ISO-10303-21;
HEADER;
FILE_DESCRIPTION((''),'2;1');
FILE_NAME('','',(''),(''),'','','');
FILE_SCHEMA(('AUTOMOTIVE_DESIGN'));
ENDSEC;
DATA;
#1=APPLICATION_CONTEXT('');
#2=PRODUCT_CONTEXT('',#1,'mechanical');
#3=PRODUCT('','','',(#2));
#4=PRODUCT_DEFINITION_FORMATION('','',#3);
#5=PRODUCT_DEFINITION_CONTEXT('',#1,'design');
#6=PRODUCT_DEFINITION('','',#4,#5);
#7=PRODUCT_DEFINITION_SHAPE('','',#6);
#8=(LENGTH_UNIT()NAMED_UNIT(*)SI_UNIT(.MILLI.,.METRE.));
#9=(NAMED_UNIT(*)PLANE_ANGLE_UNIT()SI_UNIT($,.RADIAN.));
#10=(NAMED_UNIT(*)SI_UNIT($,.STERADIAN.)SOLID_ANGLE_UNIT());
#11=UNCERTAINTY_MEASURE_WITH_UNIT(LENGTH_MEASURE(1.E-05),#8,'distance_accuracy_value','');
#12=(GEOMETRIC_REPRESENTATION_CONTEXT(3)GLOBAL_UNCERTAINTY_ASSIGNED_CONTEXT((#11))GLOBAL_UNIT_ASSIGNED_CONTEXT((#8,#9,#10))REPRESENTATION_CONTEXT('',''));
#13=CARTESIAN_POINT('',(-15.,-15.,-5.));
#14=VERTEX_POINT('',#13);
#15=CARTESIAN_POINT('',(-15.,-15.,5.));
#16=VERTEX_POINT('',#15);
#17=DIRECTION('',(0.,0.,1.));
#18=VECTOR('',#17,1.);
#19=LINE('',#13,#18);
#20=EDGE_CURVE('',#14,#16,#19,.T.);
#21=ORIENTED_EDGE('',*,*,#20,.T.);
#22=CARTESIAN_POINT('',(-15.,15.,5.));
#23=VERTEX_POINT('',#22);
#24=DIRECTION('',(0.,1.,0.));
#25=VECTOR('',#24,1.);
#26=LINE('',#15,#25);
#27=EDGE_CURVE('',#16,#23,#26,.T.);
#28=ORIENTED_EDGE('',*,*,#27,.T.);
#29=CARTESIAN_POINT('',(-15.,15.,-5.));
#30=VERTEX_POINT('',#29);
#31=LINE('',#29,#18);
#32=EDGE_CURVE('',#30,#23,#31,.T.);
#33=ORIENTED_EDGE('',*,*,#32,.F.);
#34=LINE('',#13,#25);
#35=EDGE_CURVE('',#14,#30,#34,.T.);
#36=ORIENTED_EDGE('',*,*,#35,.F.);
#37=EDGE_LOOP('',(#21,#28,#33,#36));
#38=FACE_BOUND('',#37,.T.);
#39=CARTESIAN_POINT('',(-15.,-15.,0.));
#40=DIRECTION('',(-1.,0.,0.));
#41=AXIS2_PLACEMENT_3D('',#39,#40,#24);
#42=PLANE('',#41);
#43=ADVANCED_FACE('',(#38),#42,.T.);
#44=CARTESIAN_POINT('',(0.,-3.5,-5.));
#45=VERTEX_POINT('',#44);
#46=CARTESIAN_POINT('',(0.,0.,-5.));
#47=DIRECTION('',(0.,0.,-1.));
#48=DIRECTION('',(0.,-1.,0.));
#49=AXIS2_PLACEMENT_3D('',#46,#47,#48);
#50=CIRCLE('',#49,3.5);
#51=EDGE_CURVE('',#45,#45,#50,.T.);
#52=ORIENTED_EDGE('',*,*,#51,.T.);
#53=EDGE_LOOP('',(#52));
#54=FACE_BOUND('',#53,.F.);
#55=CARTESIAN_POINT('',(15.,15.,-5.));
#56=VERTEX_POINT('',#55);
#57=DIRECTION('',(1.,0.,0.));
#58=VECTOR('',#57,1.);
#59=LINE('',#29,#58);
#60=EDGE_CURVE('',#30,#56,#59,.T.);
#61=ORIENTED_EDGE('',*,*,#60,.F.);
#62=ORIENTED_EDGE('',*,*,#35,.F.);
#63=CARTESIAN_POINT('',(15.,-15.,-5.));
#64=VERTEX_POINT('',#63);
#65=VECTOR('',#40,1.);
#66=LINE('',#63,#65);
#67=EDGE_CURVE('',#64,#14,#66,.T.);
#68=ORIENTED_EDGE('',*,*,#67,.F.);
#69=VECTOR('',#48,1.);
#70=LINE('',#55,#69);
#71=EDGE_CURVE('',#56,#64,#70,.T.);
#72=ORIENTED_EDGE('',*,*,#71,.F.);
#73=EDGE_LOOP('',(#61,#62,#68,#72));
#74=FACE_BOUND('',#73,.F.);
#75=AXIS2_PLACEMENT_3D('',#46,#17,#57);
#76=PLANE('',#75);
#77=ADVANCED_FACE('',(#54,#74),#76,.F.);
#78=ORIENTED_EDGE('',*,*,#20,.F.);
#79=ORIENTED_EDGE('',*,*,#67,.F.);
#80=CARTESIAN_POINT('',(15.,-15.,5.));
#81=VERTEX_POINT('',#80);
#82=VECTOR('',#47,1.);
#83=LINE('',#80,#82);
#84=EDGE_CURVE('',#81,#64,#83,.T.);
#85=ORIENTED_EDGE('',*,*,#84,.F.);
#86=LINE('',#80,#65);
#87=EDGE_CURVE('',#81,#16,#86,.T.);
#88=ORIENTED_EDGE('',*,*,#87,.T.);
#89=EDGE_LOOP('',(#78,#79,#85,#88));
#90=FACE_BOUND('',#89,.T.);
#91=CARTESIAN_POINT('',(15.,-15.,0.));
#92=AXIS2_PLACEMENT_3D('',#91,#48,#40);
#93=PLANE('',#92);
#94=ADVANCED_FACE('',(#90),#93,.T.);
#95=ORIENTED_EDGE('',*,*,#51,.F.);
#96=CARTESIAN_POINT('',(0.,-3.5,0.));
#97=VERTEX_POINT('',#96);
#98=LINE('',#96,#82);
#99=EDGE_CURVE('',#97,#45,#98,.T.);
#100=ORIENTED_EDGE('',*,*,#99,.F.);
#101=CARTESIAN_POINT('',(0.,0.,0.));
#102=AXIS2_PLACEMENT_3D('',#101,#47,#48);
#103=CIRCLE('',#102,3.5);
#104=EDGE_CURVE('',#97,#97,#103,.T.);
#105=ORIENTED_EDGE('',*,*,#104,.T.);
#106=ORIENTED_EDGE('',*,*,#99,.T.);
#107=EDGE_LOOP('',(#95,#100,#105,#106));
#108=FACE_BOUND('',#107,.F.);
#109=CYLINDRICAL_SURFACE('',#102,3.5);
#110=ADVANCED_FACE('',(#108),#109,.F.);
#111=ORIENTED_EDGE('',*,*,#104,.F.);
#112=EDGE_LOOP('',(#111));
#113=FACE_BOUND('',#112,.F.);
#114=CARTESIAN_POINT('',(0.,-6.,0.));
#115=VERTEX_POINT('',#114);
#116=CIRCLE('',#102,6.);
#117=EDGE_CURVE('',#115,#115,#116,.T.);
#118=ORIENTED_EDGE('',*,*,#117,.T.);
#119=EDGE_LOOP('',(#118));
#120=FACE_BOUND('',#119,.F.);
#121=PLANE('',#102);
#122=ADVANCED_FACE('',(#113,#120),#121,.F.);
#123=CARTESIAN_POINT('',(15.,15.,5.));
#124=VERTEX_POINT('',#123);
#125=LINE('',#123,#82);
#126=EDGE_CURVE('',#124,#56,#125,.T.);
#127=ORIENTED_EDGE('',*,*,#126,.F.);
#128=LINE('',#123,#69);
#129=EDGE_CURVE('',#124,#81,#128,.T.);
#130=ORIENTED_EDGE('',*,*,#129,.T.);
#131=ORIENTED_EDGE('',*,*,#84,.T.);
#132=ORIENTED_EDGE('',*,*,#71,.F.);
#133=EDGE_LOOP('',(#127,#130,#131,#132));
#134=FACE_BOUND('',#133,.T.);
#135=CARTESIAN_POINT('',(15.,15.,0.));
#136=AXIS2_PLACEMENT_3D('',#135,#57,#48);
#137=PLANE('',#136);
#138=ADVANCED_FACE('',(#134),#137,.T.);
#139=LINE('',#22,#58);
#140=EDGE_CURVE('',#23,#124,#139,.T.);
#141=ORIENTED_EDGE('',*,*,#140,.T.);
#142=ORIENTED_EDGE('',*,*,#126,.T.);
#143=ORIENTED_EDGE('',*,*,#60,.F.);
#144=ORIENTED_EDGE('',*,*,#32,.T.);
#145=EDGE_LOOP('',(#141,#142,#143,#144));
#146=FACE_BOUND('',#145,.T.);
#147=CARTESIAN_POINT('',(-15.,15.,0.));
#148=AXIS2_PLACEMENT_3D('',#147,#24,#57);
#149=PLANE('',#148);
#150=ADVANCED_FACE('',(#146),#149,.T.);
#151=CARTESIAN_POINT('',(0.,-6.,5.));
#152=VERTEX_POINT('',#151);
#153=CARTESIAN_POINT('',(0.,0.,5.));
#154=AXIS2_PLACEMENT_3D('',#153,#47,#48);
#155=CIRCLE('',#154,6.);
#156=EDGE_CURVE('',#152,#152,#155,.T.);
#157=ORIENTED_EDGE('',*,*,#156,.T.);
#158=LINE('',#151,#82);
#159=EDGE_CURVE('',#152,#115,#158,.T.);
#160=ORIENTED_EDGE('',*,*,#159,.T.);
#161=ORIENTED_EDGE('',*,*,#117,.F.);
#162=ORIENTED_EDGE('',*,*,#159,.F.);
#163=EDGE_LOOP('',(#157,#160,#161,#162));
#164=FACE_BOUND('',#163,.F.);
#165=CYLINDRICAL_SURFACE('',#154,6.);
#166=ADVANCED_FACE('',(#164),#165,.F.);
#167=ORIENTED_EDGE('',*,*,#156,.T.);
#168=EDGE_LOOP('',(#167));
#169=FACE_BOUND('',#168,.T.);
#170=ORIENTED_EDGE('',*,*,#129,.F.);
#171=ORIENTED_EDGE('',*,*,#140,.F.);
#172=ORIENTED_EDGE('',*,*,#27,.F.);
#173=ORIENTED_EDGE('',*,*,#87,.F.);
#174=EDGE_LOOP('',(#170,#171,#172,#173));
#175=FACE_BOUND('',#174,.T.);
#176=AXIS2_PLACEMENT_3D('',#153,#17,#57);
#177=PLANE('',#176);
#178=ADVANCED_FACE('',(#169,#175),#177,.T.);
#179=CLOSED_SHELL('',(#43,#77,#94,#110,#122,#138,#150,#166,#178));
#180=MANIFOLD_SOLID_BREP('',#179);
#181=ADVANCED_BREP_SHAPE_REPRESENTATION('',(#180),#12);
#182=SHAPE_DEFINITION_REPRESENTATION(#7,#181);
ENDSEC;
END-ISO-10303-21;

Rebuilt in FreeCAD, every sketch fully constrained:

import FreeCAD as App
import Part
import Sketcher

V = App.Vector
Q = App.Units.Quantity

doc = App.newDocument("Part")
body = doc.addObject("PartDesign::Body", "Body")

# Sketch on XY plane
sketch1 = body.newObject("Sketcher::SketchObject", "Sketch")
sketch1.AttachmentSupport = (doc.getObject("XY_Plane"), [""])
sketch1.MapMode = "FlatFace"
sketch1.addGeometry([
    Part.LineSegment(V(15, 15, 0), V(-15, 15, 0)),
    Part.LineSegment(V(-15, 15, 0), V(-15, -15, 0)),
    Part.LineSegment(V(-15, -15, 0), V(15, -15, 0)),
    Part.LineSegment(V(15, -15, 0), V(15, 15, 0)),
], False)
sketch1.addConstraint([
    Sketcher.Constraint("Coincident", 0, 2, 1, 1),
    Sketcher.Constraint("Coincident", 1, 2, 2, 1),
    Sketcher.Constraint("Coincident", 2, 2, 3, 1),
    Sketcher.Constraint("Coincident", 3, 2, 0, 1),
    Sketcher.Constraint("Horizontal", 0),
    Sketcher.Constraint("Vertical", 1),
    Sketcher.Constraint("Horizontal", 2),
    Sketcher.Constraint("Vertical", 3),
    Sketcher.Constraint("Symmetric", 0, 2, 2, 2, -1, 1),
    Sketcher.Constraint("Equal", 2, 1),
    Sketcher.Constraint("DistanceX", 0, 2, 0, 1, Q("30 mm")),
])
pad1 = body.newObject("PartDesign::Pad", "Pad")
pad1.Profile = sketch1
pad1.Length = 10
pad1.Midplane = True

# Sketch on XY plane
sketch2 = body.newObject("Sketcher::SketchObject", "Sketch001")
sketch2.AttachmentSupport = (doc.getObject("XY_Plane"), [""])
sketch2.MapMode = "FlatFace"
sketch2.AttachmentOffset = App.Placement(V(0, 0, 5), App.Rotation())
sketch2.addGeometry(Part.Circle(V(0, 0, 0), V(0, 0, 1), 3.5), False)
sketch2.addConstraint([
    Sketcher.Constraint("Coincident", 0, 3, -1, 1),
    Sketcher.Constraint("Diameter", 0, Q("7 mm")),
])
doc.recompute()
hole = body.newObject("PartDesign::Hole", "Hole")
hole.Profile = sketch2
hole.ThreadType = "None"
hole.Diameter = 7
hole.DepthType = "ThroughAll"
hole.HoleCutType = "Counterbore"
hole.HoleCutDiameter = 12
hole.HoleCutDepth = 5

doc.recompute()
